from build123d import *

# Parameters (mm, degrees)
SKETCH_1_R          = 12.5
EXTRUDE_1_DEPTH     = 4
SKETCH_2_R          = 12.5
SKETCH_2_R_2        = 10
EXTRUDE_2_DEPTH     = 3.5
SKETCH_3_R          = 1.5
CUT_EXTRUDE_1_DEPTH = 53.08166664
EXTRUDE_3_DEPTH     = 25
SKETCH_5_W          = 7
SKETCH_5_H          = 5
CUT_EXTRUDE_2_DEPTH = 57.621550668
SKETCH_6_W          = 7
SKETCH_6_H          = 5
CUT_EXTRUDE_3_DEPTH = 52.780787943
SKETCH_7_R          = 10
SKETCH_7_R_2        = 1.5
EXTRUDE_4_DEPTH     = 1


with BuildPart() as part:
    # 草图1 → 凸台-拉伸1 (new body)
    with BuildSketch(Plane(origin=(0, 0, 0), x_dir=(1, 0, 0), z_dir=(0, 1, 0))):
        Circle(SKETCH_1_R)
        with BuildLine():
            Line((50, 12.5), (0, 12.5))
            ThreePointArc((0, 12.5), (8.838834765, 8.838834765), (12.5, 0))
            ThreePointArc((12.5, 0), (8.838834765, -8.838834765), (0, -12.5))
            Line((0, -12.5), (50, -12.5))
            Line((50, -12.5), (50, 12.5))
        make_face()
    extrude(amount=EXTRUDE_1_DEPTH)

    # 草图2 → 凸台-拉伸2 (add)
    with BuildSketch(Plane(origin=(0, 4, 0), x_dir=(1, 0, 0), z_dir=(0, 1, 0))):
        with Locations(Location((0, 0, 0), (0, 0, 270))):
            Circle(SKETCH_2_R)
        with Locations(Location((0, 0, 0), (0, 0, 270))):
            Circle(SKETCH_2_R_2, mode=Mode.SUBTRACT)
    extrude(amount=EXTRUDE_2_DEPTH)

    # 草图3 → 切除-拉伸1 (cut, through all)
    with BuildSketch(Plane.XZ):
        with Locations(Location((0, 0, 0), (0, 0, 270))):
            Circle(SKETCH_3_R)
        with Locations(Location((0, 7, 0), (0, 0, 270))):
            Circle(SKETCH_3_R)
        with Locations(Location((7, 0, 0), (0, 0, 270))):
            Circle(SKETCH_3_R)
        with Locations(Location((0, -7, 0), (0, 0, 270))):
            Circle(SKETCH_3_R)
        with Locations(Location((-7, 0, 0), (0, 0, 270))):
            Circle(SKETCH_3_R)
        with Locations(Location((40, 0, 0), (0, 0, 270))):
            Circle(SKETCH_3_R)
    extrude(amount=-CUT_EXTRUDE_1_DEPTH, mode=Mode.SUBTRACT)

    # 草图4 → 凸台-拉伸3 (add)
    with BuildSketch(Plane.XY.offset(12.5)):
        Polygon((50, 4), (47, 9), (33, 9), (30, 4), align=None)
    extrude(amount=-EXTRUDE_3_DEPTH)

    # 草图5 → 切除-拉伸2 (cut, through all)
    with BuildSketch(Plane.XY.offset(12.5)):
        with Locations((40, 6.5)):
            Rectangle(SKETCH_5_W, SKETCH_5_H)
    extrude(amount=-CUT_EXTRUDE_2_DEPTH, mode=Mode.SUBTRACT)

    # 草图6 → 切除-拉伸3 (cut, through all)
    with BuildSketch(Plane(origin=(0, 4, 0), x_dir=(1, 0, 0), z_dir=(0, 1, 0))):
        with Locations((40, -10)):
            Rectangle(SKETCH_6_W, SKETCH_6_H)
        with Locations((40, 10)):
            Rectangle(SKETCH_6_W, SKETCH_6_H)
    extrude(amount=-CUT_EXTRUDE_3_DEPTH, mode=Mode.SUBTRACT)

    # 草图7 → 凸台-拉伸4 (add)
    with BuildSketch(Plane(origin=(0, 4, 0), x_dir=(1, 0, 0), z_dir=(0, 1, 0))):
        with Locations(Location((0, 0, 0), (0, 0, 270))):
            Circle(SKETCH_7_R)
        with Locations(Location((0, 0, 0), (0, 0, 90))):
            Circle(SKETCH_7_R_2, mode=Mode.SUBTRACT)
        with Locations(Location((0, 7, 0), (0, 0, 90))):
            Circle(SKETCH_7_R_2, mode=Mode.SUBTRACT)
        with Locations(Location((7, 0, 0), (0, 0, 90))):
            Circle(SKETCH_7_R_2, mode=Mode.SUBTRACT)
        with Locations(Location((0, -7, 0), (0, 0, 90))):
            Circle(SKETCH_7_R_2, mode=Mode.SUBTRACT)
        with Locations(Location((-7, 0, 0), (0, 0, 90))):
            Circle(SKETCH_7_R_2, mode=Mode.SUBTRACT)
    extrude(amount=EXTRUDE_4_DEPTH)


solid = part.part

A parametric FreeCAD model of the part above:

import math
import FreeCAD as App
import Part
import Sketcher

V = App.Vector
Q = App.Units.Quantity

doc = App.newDocument("Part")
body = doc.addObject("PartDesign::Body", "Body")

sketch1 = body.newObject("Sketcher::SketchObject", "Sketch")
sketch1.AttachmentSupport = (doc.getObject("XZ_Plane"), [""])
sketch1.MapMode = "FlatFace"
sketch1.addGeometry(Part.ArcOfCircle(Part.Circle(V(0, 0, 0), V(0, 0, 1), 12), math.radians(90), math.radians(270)), False)
sketch1.addGeometry(Part.LineSegment(V(0, 12, 0), V(50, 12, 0)), False)
sketch1.addGeometry(Part.LineSegment(V(50, 12, 0), V(50, -12, 0)), False)
sketch1.addGeometry(Part.LineSegment(V(50, -12, 0), V(0, -12, 0)), False)
sketch1.addConstraint(Sketcher.Constraint("Tangent", 0, 1, 1, 1))
sketch1.addConstraint(Sketcher.Constraint("Coincident", 1, 2, 2, 1))
sketch1.addConstraint(Sketcher.Constraint("Coincident", 2, 2, 3, 1))
sketch1.addConstraint(Sketcher.Constraint("Tangent", 3, 2, 0, 2))
sketch1.addConstraint(Sketcher.Constraint("Horizontal", 1))
sketch1.addConstraint(Sketcher.Constraint("Vertical", 2))
sketch1.addConstraint(Sketcher.Constraint("Horizontal", 3))
sketch1.addConstraint(Sketcher.Constraint("Coincident", 0, 3, -1, 1))
sketch1.addConstraint(Sketcher.Constraint("Radius", 0, Q("12.5 mm")))
sketch1.addConstraint(Sketcher.Constraint("DistanceX", 1, 1, 1, 2, Q("50 mm")))
pad1 = body.newObject("PartDesign::Pad", "Pad")
pad1.Profile = sketch1
pad1.Length = 4
pad1.Reversed = True

sketch2 = body.newObject("Sketcher::SketchObject", "Sketch001")
sketch2.AttachmentSupport = (doc.getObject("XZ_Plane"), [""])
sketch2.MapMode = "FlatFace"
sketch2.AttachmentOffset = App.Placement(V(0, 0, -4), App.Rotation())
sketch2.addGeometry(Part.Circle(V(0, 0, 0), V(0, 0, 1), 12), False)
sketch2.addGeometry(Part.Circle(V(0, 0, 0), V(0, 0, 1), 10), False)
sketch2.addConstraint(Sketcher.Constraint("Coincident", 0, 3, -1, 1))
sketch2.addConstraint(Sketcher.Constraint("Coincident", 1, 3, -1, 1))
sketch2.addConstraint(Sketcher.Constraint("Diameter", 0, Q("25 mm")))
sketch2.addConstraint(Sketcher.Constraint("Diameter", 1, Q("20 mm")))
pad2 = body.newObject("PartDesign::Pad", "Pad001")
pad2.Profile = sketch2
pad2.Length = 3.5
pad2.Reversed = True

sketch3 = body.newObject("Sketcher::SketchObject", "Sketch002")
sketch3.AttachmentSupport = (doc.getObject("XZ_Plane"), [""])
sketch3.MapMode = "FlatFace"
sketch3.addGeometry(Part.Circle(V(0, 0, 0), V(0, 0, 1), 1.5), False)
sketch3.addGeometry(Part.Circle(V(0, 7, 0), V(0, 0, 1), 1.5), False)
sketch3.addGeometry(Part.Circle(V(7, 0, 0), V(0, 0, 1), 1.5), False)
sketch3.addGeometry(Part.Circle(V(0, -7, 0), V(0, 0, 1), 1.5), False)
sketch3.addGeometry(Part.Circle(V(-7, 0, 0), V(0, 0, 1), 1.5), False)
sketch3.addGeometry(Part.Circle(V(40, 0, 0), V(0, 0, 1), 1.5), False)
sketch3.addConstraint(Sketcher.Constraint("Coincident", 0, 3, -1, 1))
sketch3.addConstraint(Sketcher.Constraint("Equal", 0, 1))
sketch3.addConstraint(Sketcher.Constraint("Equal", 1, 2))
sketch3.addConstraint(Sketcher.Constraint("Equal", 2, 3))
sketch3.addConstraint(Sketcher.Constraint("Equal", 3, 4))
sketch3.addConstraint(Sketcher.Constraint("Equal", 4, 5))
sketch3.addConstraint(Sketcher.Constraint("Symmetric", 1, 3, 3, 3, -1, 1))
sketch3.addConstraint(Sketcher.Constraint("Symmetric", 2, 3, 4, 3, -1, 1))
sketch3.addConstraint(Sketcher.Constraint("PointOnObject", 1, 3, -2))
sketch3.addConstraint(Sketcher.Constraint("PointOnObject", 2, 3, -1))
sketch3.addConstraint(Sketcher.Constraint("PointOnObject", 5, 3, -1))
sketch3.addConstraint(Sketcher.Constraint("Diameter", 0, Q("3 mm")))
sketch3.addConstraint(Sketcher.Constraint("DistanceY", -1, 1, 1, 3, Q("7 mm")))
sketch3.addConstraint(Sketcher.Constraint("DistanceX", -1, 1, 2, 3, Q("7 mm")))
sketch3.addConstraint(Sketcher.Constraint("DistanceX", -1, 1, 5, 3, Q("40 mm")))
pocket1 = body.newObject("PartDesign::Pocket", "Pocket")
pocket1.Profile = sketch3
pocket1.Type = "ThroughAll"

sketch4 = body.newObject("Sketcher::SketchObject", "Sketch003")
sketch4.AttachmentSupport = (doc.getObject("XY_Plane"), [""])
sketch4.MapMode = "FlatFace"
sketch4.AttachmentOffset = App.Placement(V(0, 0, 12.5), App.Rotation())
sketch4.addGeometry(Part.LineSegment(V(50, 4, 0), V(47, 9, 0)), False)
sketch4.addGeometry(Part.LineSegment(V(47, 9, 0), V(33, 9, 0)), False)
sketch4.addGeometry(Part.LineSegment(V(33, 9, 0), V(30, 4, 0)), False)
sketch4.addGeometry(Part.LineSegment(V(30, 4, 0), V(50, 4, 0)), False)
sketch4.addConstraint(Sketcher.Constraint("Coincident", 0, 2, 1, 1))
sketch4.addConstraint(Sketcher.Constraint("Coincident", 1, 2, 2, 1))
sketch4.addConstraint(Sketcher.Constraint("Coincident", 2, 2, 3, 1))
sketch4.addConstraint(Sketcher.Constraint("Coincident", 3, 2, 0, 1))
sketch4.addConstraint(Sketcher.Constraint("Horizontal", 1))
sketch4.addConstraint(Sketcher.Constraint("Horizontal", 3))
sketch4.addConstraint(Sketcher.Constraint("Equal", 0, 2))
sketch4.addConstraint(Sketcher.Constraint("DistanceX", 1, 2, 1, 1, Q("14 mm")))
sketch4.addConstraint(Sketcher.Constraint("DistanceX", 3, 1, 3, 2, Q("20 mm")))
sketch4.addConstraint(Sketcher.Constraint("DistanceX", -1, 1, 0, 2, Q("47 mm")))
sketch4.addConstraint(Sketcher.Constraint("DistanceY", -1, 1, 0, 2, Q("9 mm")))
sketch4.addConstraint(Sketcher.Constraint("DistanceY", -1, 1, 2, 2, Q("4 mm")))
pad3 = body.newObject("PartDesign::Pad", "Pad002")
pad3.Profile = sketch4
pad3.Length = 25
pad3.Reversed = True

sketch5 = body.newObject("Sketcher::SketchObject", "Sketch004")
sketch5.AttachmentSupport = (doc.getObject("XY_Plane"), [""])
sketch5.MapMode = "FlatFace"
sketch5.AttachmentOffset = App.Placement(V(0, 0, 12.5), App.Rotation())
sketch5.addGeometry(Part.LineSegment(V(36, 9, 0), V(36, 4, 0)), False)
sketch5.addGeometry(Part.LineSegment(V(36, 4, 0), V(44, 4, 0)), False)
sketch5.addGeometry(Part.LineSegment(V(44, 4, 0), V(44, 9, 0)), False)
sketch5.addGeometry(Part.LineSegment(V(44, 9, 0), V(36, 9, 0)), False)
sketch5.addConstraint(Sketcher.Constraint("Coincident", 0, 2, 1, 1))
sketch5.addConstraint(Sketcher.Constraint("Coincident", 1, 2, 2, 1))
sketch5.addConstraint(Sketcher.Constraint("Coincident", 2, 2, 3, 1))
sketch5.addConstraint(Sketcher.Constraint("Coincident", 3, 2, 0, 1))
sketch5.addConstraint(Sketcher.Constraint("Vertical", 0))
sketch5.addConstraint(Sketcher.Constraint("Horizontal", 1))
sketch5.addConstraint(Sketcher.Constraint("Vertical", 2))
sketch5.addConstraint(Sketcher.Constraint("Horizontal", 3))
sketch5.addConstraint(Sketcher.Constraint("DistanceX", 1, 1, 1, 2, Q("7 mm")))
sketch5.addConstraint(Sketcher.Constraint("DistanceY", 0, 2, 0, 1, Q("5 mm")))
sketch5.addConstraint(Sketcher.Constraint("DistanceY", -1, 1, 0, 2, Q("4 mm")))
sketch5.addConstraint(Sketcher.Constraint("DistanceX", -1, 1, 0, 2, Q("36.5 mm")))
pocket2 = body.newObject("PartDesign::Pocket", "Pocket001")
pocket2.Profile = sketch5
pocket2.Type = "ThroughAll"

sketch6 = body.newObject("Sketcher::SketchObject", "Sketch005")
sketch6.AttachmentSupport = (doc.getObject("XZ_Plane"), [""])
sketch6.MapMode = "FlatFace"
sketch6.AttachmentOffset = App.Placement(V(0, 0, -4), App.Rotation())
sketch6.addGeometry(Part.LineSegment(V(36, 8, 0), V(36, 12, 0)), False)
sketch6.addGeometry(Part.LineSegment(V(36, 12, 0), V(44, 12, 0)), False)
sketch6.addGeometry(Part.LineSegment(V(44, 12, 0), V(44, 8, 0)), False)
sketch6.addGeometry(Part.LineSegment(V(44, 8, 0), V(36, 8, 0)), False)
sketch6.addGeometry(Part.LineSegment(V(36, -12, 0), V(36, -8, 0)), False)
sketch6.addGeometry(Part.LineSegment(V(36, -8, 0), V(44, -8, 0)), False)
sketch6.addGeometry(Part.LineSegment(V(44, -8, 0), V(44, -12, 0)), False)
sketch6.addGeometry(Part.LineSegment(V(44, -12, 0), V(36, -12, 0)), False)
sketch6.addConstraint(Sketcher.Constraint("Coincident", 0, 2, 1, 1))
sketch6.addConstraint(Sketcher.Constraint("Coincident", 1, 2, 2, 1))
sketch6.addConstraint(Sketcher.Constraint("Coincident", 2, 2, 3, 1))
sketch6.addConstraint(Sketcher.Constraint("Coincident", 3, 2, 0, 1))
sketch6.addConstraint(Sketcher.Constraint("Coincident", 4, 2, 5, 1))
sketch6.addConstraint(Sketcher.Constraint("Coincident", 5, 2, 6, 1))
sketch6.addConstraint(Sketcher.Constraint("Coincident", 6, 2, 7, 1))
sketch6.addConstraint(Sketcher.Constraint("Coincident", 7, 2, 4, 1))
sketch6.addConstraint(Sketcher.Constraint("Vertical", 0))
sketch6.addConstraint(Sketcher.Constraint("Horizontal", 1))
sketch6.addConstraint(Sketcher.Constraint("Vertical", 2))
sketch6.addConstraint(Sketcher.Constraint("Horizontal", 3))
sketch6.addConstraint(Sketcher.Constraint("Vertical", 4))
sketch6.addConstraint(Sketcher.Constraint("Horizontal", 5))
sketch6.addConstraint(Sketcher.Constraint("Vertical", 6))
sketch6.addConstraint(Sketcher.Constraint("Horizontal", 7))
sketch6.addConstraint(Sketcher.Constraint("Symmetric", 3, 2, 4, 2, -1))
sketch6.addConstraint(Sketcher.Constraint("Symmetric", 1, 2, 6, 2, -1))
sketch6.addConstraint(Sketcher.Constraint("DistanceX", 1, 1, 1, 2, Q("7 mm")))
sketch6.addConstraint(Sketcher.Constraint("DistanceY", 0, 1, 0, 2, Q("5 mm")))
sketch6.addConstraint(Sketcher.Constraint("DistanceY", 4, 2, 3, 2, Q("15 mm")))
sketch6.addConstraint(Sketcher.Constraint("DistanceX", -1, 1, 0, 2, Q("36.5 mm")))
pocket3 = body.newObject("PartDesign::Pocket", "Pocket002")
pocket3.Profile = sketch6
pocket3.Type = "ThroughAll"
pocket3.Reversed = True

sketch7 = body.newObject("Sketcher::SketchObject", "Sketch006")
sketch7.AttachmentSupport = (doc.getObject("XZ_Plane"), [""])
sketch7.MapMode = "FlatFace"
sketch7.AttachmentOffset = App.Placement(V(0, 0, -4), App.Rotation())
sketch7.addGeometry(Part.Circle(V(0, 0, 0), V(0, 0, 1), 10), False)
sketch7.addGeometry(Part.Circle(V(0, -7, 0), V(0, 0, 1), 1.5), False)
sketch7.addGeometry(Part.Circle(V(-7, 0, 0), V(0, 0, 1), 1.5), False)
sketch7.addGeometry(Part.Circle(V(7, 0, 0), V(0, 0, 1), 1.5), False)
sketch7.addGeometry(Part.Circle(V(0, 0, 0), V(0, 0, 1), 1.5), False)
sketch7.addGeometry(Part.Circle(V(0, 7, 0), V(0, 0, 1), 1.5), False)
sketch7.addConstraint(Sketcher.Constraint("Coincident", 0, 3, -1, 1))
sketch7.addConstraint(Sketcher.Constraint("Coincident", 4, 3, -1, 1))
sketch7.addConstraint(Sketcher.Constraint("Equal", 1, 2))
sketch7.addConstraint(Sketcher.Constraint("Equal", 2, 3))
sketch7.addConstraint(Sketcher.Constraint("Equal", 3, 4))
sketch7.addConstraint(Sketcher.Constraint("Equal", 4, 5))
sketch7.addConstraint(Sketcher.Constraint("Symmetric", 2, 3, 3, 3, -1, 1))
sketch7.addConstraint(Sketcher.Constraint("Symmetric", 1, 3, 5, 3, -1, 1))
sketch7.addConstraint(Sketcher.Constraint("PointOnObject", 1, 3, -2))
sketch7.addConstraint(Sketcher.Constraint("PointOnObject", 2, 3, -1))
sketch7.addConstraint(Sketcher.Constraint("Diameter", 0, Q("20 mm")))
sketch7.addConstraint(Sketcher.Constraint("Diameter", 1, Q("3 mm")))
sketch7.addConstraint(Sketcher.Constraint("DistanceY", 1, 3, -1, 1, Q("7 mm")))
sketch7.addConstraint(Sketcher.Constraint("DistanceX", 2, 3, -1, 1, Q("7 mm")))
pad4 = body.newObject("PartDesign::Pad", "Pad003")
pad4.Profile = sketch7
pad4.Length = 1
pad4.Reversed = True

doc.recompute()
